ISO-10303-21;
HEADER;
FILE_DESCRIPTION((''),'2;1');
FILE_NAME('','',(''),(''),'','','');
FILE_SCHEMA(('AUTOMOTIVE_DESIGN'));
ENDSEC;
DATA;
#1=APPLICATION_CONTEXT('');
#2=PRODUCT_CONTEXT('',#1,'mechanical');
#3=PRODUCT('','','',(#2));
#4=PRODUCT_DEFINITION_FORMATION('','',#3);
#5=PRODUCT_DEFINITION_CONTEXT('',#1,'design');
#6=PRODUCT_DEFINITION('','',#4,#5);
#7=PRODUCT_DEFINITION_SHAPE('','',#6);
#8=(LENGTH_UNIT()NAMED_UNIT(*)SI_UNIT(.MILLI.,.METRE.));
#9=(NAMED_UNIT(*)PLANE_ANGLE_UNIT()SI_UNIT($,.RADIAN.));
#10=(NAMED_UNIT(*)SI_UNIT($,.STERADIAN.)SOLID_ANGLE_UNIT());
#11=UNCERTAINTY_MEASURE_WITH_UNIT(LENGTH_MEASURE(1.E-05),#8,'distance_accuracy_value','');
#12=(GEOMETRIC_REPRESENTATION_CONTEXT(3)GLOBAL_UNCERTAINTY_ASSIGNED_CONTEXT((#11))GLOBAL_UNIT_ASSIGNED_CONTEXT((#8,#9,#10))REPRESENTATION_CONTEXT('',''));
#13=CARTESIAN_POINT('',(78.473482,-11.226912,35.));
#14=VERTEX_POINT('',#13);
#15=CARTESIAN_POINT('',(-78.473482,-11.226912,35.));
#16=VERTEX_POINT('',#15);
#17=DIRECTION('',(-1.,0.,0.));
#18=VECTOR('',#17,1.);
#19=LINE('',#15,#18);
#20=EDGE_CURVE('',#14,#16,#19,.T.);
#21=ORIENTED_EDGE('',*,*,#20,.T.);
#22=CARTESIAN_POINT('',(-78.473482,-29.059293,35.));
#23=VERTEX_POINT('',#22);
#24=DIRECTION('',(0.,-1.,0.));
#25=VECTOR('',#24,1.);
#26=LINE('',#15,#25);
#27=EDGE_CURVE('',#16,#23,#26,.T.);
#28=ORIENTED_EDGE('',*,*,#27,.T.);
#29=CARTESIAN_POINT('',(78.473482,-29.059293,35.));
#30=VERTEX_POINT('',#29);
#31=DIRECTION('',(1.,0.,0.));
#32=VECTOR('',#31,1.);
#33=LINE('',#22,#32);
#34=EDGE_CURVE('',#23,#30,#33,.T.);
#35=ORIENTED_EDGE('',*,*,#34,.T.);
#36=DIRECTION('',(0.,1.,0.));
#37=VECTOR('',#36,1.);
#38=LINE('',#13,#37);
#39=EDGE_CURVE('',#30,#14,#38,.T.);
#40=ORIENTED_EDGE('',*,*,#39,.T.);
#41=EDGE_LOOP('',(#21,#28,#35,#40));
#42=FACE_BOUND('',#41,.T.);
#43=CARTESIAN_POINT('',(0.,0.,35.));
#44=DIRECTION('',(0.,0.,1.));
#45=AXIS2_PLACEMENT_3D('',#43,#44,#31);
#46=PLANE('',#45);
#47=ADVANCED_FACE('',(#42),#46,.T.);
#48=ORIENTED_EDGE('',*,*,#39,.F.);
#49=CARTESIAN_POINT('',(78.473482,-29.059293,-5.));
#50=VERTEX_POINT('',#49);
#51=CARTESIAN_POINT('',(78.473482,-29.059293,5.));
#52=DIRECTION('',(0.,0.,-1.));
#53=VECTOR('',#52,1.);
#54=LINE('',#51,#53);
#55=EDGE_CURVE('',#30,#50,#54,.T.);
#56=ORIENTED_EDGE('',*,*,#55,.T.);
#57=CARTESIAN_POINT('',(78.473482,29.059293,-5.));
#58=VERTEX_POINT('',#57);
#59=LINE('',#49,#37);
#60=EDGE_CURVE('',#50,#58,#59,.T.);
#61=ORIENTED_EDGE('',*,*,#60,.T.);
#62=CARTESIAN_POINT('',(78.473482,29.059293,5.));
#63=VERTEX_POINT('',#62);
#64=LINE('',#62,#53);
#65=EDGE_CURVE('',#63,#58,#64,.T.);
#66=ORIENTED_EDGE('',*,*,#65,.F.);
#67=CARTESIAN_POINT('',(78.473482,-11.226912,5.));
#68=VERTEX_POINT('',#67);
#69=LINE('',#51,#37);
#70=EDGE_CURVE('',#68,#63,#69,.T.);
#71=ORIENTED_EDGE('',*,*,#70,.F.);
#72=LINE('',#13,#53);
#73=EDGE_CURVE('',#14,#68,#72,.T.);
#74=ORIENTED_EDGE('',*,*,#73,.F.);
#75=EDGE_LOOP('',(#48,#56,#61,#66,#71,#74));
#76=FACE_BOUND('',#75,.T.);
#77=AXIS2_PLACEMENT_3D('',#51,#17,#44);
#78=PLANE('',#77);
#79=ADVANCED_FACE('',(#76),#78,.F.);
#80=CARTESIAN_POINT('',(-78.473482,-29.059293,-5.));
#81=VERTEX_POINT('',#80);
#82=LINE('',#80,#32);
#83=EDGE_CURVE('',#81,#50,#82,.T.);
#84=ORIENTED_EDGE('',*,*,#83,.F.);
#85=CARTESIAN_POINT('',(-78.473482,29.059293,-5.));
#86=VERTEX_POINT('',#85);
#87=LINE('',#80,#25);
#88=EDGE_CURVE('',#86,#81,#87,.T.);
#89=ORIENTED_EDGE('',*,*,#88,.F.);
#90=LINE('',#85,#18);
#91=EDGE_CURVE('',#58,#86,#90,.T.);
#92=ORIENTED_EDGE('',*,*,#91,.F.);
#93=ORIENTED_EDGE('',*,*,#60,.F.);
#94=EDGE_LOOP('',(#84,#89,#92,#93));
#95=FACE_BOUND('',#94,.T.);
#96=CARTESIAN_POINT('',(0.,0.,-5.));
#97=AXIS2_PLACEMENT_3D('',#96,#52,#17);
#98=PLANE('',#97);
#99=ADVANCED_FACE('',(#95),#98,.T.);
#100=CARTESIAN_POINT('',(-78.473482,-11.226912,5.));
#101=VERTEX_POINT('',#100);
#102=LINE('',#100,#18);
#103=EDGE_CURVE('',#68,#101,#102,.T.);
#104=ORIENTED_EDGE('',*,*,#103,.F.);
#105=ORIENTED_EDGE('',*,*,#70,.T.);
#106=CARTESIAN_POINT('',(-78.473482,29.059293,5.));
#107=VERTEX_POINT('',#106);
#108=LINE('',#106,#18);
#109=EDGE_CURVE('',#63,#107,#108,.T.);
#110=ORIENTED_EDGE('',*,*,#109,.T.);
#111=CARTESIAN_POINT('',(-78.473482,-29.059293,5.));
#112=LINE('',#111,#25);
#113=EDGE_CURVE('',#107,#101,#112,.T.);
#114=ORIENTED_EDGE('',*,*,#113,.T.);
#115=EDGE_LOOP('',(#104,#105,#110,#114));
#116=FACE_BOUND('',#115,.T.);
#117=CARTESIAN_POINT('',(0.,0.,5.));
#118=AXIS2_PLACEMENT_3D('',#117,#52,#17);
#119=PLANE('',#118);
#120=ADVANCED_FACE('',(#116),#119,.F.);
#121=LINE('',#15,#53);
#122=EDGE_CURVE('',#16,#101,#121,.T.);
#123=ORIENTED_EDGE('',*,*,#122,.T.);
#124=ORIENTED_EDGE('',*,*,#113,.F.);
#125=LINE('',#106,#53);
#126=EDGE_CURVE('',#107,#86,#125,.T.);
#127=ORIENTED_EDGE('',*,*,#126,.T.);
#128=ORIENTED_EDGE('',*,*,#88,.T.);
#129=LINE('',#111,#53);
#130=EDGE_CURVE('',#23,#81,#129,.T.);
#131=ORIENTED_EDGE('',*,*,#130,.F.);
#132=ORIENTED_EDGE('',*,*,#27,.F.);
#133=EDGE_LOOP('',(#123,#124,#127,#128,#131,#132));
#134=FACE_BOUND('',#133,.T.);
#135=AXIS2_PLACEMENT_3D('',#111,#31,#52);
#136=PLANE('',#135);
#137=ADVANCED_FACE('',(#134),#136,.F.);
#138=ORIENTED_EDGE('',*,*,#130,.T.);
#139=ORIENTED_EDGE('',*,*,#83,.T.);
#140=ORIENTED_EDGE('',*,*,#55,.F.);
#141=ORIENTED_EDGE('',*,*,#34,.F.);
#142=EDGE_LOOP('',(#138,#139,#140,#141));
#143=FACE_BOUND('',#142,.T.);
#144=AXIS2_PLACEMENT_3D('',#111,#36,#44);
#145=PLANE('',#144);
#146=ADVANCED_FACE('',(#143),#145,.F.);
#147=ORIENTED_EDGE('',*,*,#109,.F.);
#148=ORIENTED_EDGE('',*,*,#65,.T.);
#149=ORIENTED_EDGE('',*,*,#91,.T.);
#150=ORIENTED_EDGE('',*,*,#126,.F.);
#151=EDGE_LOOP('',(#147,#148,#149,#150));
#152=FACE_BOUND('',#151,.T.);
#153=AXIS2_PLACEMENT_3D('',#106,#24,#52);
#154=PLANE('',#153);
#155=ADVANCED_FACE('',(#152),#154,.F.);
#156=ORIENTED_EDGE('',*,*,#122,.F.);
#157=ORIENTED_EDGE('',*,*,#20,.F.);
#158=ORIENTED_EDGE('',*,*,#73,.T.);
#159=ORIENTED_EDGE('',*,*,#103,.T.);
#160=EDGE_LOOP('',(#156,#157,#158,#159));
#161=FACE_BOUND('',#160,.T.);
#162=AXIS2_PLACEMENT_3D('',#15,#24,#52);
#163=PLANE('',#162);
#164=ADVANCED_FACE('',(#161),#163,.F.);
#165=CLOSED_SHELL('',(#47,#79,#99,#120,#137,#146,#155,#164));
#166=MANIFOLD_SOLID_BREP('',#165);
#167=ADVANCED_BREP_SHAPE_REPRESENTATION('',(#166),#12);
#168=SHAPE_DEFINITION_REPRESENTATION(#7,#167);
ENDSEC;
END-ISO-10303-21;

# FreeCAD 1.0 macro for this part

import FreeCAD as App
import Part
import Sketcher
Q = App.Units.Quantity


def add_polygon(sketch, points):
    """Adds a closed chain of lines whose ends are joined by coincident constraints."""
    first, n = sketch.GeometryCount, len(points)
    for a, b in zip(points, points[1:] + points[:1]):
        sketch.addGeometry(Part.LineSegment(App.Vector(*a, 0), App.Vector(*b, 0)), False)
    for i in range(n):
        sketch.addConstraint(Sketcher.Constraint("Coincident", first + i, 2, first + (i + 1) % n, 1))

doc = App.newDocument("Part")
body = doc.addObject("PartDesign::Body", "Body")

# Sketch on XY plane
sketch1 = body.newObject("Sketcher::SketchObject", "Sketch")
sketch1.AttachmentSupport = (doc.getObject("XY_Plane"), [""])
sketch1.MapMode = "FlatFace"
add_polygon(sketch1, [(-78, 29), (-78, -29), (78, -29), (78, 29)])  # lines 0-3
sketch1.addConstraint([
    Sketcher.Constraint("Vertical", 0),
    Sketcher.Constraint("Horizontal", 1),
    Sketcher.Constraint("Vertical", 2),
    Sketcher.Constraint("Horizontal", 3),
    Sketcher.Constraint("Symmetric", 0, 2, 2, 2, -1, 1),
    Sketcher.Constraint("DistanceX", 1, 1, 1, 2, Q("156.946964 mm")),
    Sketcher.Constraint("DistanceY", 0, 2, 0, 1, Q("58.118586 mm")),
])
pad1 = body.newObject("PartDesign::Pad", "Pad")
pad1.Profile = sketch1
pad1.Length = 10
pad1.Midplane = True

# Sketch on XY plane
sketch2 = body.newObject("Sketcher::SketchObject", "Sketch001")
sketch2.AttachmentSupport = (doc.getObject("XY_Plane"), [""])
sketch2.MapMode = "FlatFace"
sketch2.AttachmentOffset = App.Placement(App.Vector(0, 0, 5), App.Rotation())
add_polygon(sketch2, [(-78, -11), (-78, -29), (78, -29), (78, -11)])  # lines 0-3
sketch2.addConstraint([
    Sketcher.Constraint("Vertical", 0),
    Sketcher.Constraint("Horizontal", 1),
    Sketcher.Constraint("Vertical", 2),
    Sketcher.Constraint("Horizontal", 3),
    Sketcher.Constraint("DistanceY", 0, 2, 0, 1, Q("17.832381 mm")),
    Sketcher.Constraint("DistanceX", 1, 1, 1, 2, Q("156.946964 mm")),
    Sketcher.Constraint("DistanceY", 2, 2, -1, 1, Q("11.226912 mm")),
    Sketcher.Constraint("DistanceX", 0, 2, -1, 1, Q("78.473482 mm")),
])
pad2 = body.newObject("PartDesign::Pad", "Pad001")
pad2.Profile = sketch2
pad2.Length = 30

doc.recompute()
